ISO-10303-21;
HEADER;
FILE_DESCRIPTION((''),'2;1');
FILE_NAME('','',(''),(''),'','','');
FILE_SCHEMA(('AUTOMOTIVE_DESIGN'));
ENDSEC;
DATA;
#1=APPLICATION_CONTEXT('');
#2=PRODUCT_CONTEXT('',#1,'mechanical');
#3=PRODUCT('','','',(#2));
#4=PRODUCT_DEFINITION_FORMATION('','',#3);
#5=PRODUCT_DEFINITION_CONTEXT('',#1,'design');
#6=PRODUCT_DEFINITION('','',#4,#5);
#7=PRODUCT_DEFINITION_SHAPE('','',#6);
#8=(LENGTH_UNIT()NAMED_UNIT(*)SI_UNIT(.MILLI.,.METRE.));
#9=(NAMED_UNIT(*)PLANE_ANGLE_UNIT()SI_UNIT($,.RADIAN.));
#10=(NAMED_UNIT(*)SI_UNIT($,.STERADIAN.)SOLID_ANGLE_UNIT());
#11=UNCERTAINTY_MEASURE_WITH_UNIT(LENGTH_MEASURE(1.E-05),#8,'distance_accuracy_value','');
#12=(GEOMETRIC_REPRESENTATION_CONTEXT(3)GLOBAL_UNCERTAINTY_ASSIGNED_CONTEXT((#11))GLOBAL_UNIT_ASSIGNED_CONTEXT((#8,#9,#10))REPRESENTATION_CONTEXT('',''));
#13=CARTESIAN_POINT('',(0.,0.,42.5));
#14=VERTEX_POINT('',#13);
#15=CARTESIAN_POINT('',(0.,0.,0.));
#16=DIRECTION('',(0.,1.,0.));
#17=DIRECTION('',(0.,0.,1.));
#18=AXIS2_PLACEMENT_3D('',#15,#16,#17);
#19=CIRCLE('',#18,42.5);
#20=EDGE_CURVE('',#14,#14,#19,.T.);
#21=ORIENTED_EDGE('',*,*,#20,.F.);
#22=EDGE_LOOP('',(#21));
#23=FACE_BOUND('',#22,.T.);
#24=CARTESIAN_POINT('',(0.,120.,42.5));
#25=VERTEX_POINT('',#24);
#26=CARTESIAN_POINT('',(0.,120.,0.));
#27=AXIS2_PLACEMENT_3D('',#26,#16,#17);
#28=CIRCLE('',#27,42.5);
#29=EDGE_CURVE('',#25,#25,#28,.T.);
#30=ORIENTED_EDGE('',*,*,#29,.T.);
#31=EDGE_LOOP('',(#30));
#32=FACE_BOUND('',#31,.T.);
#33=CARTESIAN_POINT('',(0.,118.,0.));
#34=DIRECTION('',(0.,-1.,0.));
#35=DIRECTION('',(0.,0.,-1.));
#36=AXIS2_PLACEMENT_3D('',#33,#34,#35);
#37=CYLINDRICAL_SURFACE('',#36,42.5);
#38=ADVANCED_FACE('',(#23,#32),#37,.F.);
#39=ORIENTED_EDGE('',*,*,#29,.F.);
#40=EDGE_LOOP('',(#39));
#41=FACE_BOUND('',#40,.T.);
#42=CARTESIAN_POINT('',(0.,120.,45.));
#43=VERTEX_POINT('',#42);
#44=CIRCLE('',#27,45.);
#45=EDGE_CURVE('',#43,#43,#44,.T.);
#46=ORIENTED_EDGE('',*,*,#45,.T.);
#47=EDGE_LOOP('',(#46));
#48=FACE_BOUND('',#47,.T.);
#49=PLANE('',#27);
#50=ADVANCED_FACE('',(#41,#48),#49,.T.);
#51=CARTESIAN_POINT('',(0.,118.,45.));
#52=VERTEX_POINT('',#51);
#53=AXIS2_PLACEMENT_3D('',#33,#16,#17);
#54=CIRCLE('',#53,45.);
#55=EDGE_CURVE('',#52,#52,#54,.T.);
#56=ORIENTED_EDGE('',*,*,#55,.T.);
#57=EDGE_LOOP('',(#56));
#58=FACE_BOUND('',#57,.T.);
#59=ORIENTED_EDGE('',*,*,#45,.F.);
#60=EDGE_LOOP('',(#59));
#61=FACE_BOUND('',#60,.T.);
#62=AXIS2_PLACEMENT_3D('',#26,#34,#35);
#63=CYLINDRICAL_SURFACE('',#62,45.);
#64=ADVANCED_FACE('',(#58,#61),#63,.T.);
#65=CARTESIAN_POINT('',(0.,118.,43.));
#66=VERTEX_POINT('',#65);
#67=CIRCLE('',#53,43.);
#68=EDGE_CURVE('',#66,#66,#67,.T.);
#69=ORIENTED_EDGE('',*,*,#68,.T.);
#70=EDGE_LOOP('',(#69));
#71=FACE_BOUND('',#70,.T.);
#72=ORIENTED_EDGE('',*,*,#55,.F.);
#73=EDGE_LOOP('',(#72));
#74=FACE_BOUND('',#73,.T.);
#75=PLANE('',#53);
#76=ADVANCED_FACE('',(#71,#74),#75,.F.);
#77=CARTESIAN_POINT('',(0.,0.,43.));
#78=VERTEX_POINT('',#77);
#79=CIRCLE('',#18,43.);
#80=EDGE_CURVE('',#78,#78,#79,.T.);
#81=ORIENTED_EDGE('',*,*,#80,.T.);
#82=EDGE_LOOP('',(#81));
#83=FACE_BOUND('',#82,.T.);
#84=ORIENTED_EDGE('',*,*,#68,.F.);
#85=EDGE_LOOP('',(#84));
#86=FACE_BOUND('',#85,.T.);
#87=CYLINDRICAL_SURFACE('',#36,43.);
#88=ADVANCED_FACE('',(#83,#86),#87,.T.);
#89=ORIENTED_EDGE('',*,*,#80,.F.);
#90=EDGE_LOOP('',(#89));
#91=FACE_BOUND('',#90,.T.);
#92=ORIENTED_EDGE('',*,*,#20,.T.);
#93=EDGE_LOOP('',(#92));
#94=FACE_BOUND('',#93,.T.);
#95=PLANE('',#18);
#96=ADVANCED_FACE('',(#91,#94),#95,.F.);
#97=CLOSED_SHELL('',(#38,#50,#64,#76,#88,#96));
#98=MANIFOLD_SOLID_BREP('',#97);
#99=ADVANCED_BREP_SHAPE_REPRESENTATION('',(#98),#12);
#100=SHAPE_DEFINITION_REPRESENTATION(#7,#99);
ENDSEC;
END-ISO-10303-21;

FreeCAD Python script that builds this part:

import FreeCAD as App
import Part
import Sketcher

V = App.Vector

doc = App.newDocument("Part")
body = doc.addObject("PartDesign::Body", "Body")

sketch1 = doc.addObject("Sketcher::SketchObject", "Sketch")
body.addObject(sketch1)
sketch1.AttachmentSupport = (doc.XZ_Plane, [""])
sketch1.MapMode = "FlatFace"
sketch1.addGeometry(Part.Circle(V(0, 0, 0), V(0, 0, 1), 43), False)
sketch1.addGeometry(Part.Circle(V(0, 0, 0), V(0, 0, 1), 42.5), False)
sketch1.addConstraint(Sketcher.Constraint("Coincident", 0, 3, -1, 1))
sketch1.addConstraint(Sketcher.Constraint("Coincident", 1, 3, -1, 1))
sketch1.addConstraint(Sketcher.Constraint("Diameter", 0, 86.0))
sketch1.addConstraint(Sketcher.Constraint("Diameter", 1, 85.0))
pad1 = doc.addObject("PartDesign::Pad", "Pad")
body.addObject(pad1)
pad1.Profile = sketch1
pad1.Length = 118
pad1.Reversed = True

sketch2 = doc.addObject("Sketcher::SketchObject", "Sketch001")
body.addObject(sketch2)
sketch2.AttachmentSupport = (doc.XZ_Plane, [""])
sketch2.MapMode = "FlatFace"
sketch2.AttachmentOffset = App.Placement(V(0, 0, -118), App.Rotation())
sketch2.addGeometry(Part.Circle(V(0, 0, 0), V(0, 0, 1), 45), False)
sketch2.addGeometry(Part.Circle(V(0, 0, 0), V(0, 0, 1), 42.5), False)
sketch2.addConstraint(Sketcher.Constraint("Coincident", 0, 3, -1, 1))
sketch2.addConstraint(Sketcher.Constraint("Coincident", 1, 3, -1, 1))
sketch2.addConstraint(Sketcher.Constraint("Diameter", 0, 90.0))
sketch2.addConstraint(Sketcher.Constraint("Diameter", 1, 85.0))
pad2 = doc.addObject("PartDesign::Pad", "Pad001")
body.addObject(pad2)
pad2.Profile = sketch2
pad2.Length = 2
pad2.Reversed = True

doc.recompute()
